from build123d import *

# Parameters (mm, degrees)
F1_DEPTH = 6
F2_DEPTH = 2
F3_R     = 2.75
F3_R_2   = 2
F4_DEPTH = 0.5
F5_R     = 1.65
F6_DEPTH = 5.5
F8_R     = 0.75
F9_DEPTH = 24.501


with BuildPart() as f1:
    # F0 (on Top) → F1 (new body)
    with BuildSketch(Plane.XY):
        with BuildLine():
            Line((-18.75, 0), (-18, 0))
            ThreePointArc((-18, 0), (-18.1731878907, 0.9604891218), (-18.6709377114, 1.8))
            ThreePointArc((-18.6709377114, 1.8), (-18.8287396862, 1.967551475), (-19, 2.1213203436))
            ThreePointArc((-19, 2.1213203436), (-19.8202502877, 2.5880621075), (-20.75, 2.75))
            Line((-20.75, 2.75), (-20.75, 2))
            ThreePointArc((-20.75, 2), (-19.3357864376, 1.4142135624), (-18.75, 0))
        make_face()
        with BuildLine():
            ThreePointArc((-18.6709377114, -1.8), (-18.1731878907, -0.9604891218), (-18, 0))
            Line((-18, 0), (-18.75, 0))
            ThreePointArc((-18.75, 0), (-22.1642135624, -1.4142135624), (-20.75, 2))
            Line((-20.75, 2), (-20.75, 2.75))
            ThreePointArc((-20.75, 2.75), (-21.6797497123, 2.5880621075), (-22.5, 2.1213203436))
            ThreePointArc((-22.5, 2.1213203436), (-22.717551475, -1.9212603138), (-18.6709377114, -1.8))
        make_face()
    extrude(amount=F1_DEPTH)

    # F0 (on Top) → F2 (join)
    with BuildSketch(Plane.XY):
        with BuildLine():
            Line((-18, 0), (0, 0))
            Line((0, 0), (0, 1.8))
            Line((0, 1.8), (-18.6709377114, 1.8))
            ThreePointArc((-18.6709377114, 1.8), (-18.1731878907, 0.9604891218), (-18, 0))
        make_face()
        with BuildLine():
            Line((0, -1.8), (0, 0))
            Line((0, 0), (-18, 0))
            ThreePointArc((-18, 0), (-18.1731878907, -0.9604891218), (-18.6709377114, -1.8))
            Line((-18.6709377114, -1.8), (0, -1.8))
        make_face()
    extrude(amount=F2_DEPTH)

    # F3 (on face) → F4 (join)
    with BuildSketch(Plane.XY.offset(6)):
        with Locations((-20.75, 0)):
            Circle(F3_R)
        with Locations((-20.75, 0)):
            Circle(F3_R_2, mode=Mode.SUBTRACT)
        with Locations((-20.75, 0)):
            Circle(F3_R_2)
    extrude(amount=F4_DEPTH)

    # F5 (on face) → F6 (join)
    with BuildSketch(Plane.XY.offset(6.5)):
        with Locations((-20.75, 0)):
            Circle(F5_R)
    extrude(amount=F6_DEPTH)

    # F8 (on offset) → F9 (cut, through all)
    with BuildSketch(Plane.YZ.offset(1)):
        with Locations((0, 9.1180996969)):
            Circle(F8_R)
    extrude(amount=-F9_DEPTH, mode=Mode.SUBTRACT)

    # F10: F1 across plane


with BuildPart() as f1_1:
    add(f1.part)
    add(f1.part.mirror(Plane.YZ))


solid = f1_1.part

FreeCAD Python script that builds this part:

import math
import FreeCAD as App
import Part
import Sketcher
Q = App.Units.Quantity

doc = App.newDocument("Part")
body = doc.addObject("PartDesign::Body", "Body")

# Sketch on XY plane
sketch1 = body.newObject("Sketcher::SketchObject", "Sketch")
sketch1.AttachmentSupport = (doc.getObject("XY_Plane"), [""])
sketch1.MapMode = "FlatFace"
sketch1.addGeometry(Part.ArcOfCircle(Part.Circle(App.Vector(-20.75, 0, 0), App.Vector(0, 0, 1), 2.75), math.radians(0), math.radians(41)), False)
sketch1.addGeometry(Part.ArcOfCircle(Part.Circle(App.Vector(-20.75, 0, 0), App.Vector(0, 0, 1), 2.75), math.radians(40.89), math.radians(50.48)), False)
sketch1.addGeometry(Part.ArcOfCircle(Part.Circle(App.Vector(-20.75, 0, 0), App.Vector(0, 0, 1), 2.75), math.radians(50), math.radians(90)), False)
sketch1.addGeometry(Part.ArcOfCircle(Part.Circle(App.Vector(-20.75, 0, 0), App.Vector(0, 0, 1), 2.75), math.radians(90), math.radians(130)), False)
sketch1.addGeometry(Part.ArcOfCircle(Part.Circle(App.Vector(-20.75, 0, 0), App.Vector(0, 0, 1), 2.75), math.radians(130), math.radians(319)), False)
sketch1.addGeometry(Part.ArcOfCircle(Part.Circle(App.Vector(-20.75, 0, 0), App.Vector(0, 0, 1), 2.75), math.radians(-41), math.radians(0)), False)
sketch1.addGeometry(Part.ArcOfCircle(Part.Circle(App.Vector(-20.75, 0, 0), App.Vector(0, 0, 1), 2), math.radians(0), math.radians(90)), False)
sketch1.addGeometry(Part.ArcOfCircle(Part.Circle(App.Vector(-20.75, 0, 0), App.Vector(0, 0, 1), 2), math.radians(90), math.radians(360)), False)
sketch1.addConstraint(Sketcher.Constraint("Tangent", 0, 2, 1, 1))
sketch1.addConstraint(Sketcher.Constraint("Tangent", 1, 2, 2, 1))
sketch1.addConstraint(Sketcher.Constraint("Tangent", 2, 2, 3, 1))
sketch1.addConstraint(Sketcher.Constraint("Tangent", 3, 2, 4, 1))
sketch1.addConstraint(Sketcher.Constraint("Tangent", 4, 2, 5, 1))
sketch1.addConstraint(Sketcher.Constraint("Tangent", 5, 2, 0, 1))
sketch1.addConstraint(Sketcher.Constraint("Tangent", 6, 1, 7, 2))
sketch1.addConstraint(Sketcher.Constraint("Coincident", 7, 1, 6, 2))
sketch1.addConstraint(Sketcher.Constraint("Coincident", 2, 3, 0, 3))
sketch1.addConstraint(Sketcher.Constraint("Coincident", 6, 3, 0, 3))
sketch1.addConstraint(Sketcher.Constraint("Equal", 2, 3))
sketch1.addConstraint(Sketcher.Constraint("Symmetric", 0, 2, 4, 2, -1))
sketch1.addConstraint(Sketcher.Constraint("PointOnObject", 5, 2, -1))
sketch1.addConstraint(Sketcher.Constraint("PointOnObject", 6, 1, -1))
sketch1.addConstraint(Sketcher.Constraint("Horizontal", 1, 2, 3, 2))
sketch1.addConstraint(Sketcher.Constraint("Vertical", 7, 3, 2, 2))
sketch1.addConstraint(Sketcher.Constraint("Vertical", 2, 2, 7, 1))
sketch1.addConstraint(Sketcher.Constraint("Radius", 6, Q("2 mm")))
sketch1.addConstraint(Sketcher.Constraint("Radius", 0, Q("2.75 mm")))
sketch1.addConstraint(Sketcher.Constraint("DistanceX", 1, 2, -1, 1, Q("19 mm")))
sketch1.addConstraint(Sketcher.Constraint("DistanceX", 5, 2, -1, 1, Q("18 mm")))
sketch1.addConstraint(Sketcher.Constraint("DistanceY", -1, 1, 0, 2, Q("1.8 mm")))
pad1 = body.newObject("PartDesign::Pad", "Pad")
pad1.Profile = sketch1
pad1.Length = 6

# Sketch on XY plane
sketch2 = body.newObject("Sketcher::SketchObject", "Sketch001")
sketch2.AttachmentSupport = (doc.getObject("XY_Plane"), [""])
sketch2.MapMode = "FlatFace"
sketch2.addGeometry(Part.LineSegment(App.Vector(0, 1.8, 0), App.Vector(-18.7, 1.8, 0)), False)
sketch2.addGeometry(Part.ArcOfCircle(Part.Circle(App.Vector(-20.8, 0, 0), App.Vector(0, 0, 1), 2.8), math.radians(0), math.radians(41)), False)
sketch2.addGeometry(Part.ArcOfCircle(Part.Circle(App.Vector(-20.8, 0, 0), App.Vector(0, 0, 1), 2.8), math.radians(-41), math.radians(0)), False)
sketch2.addGeometry(Part.LineSegment(App.Vector(-18.7, -1.8, 0), App.Vector(0, -1.8, 0)), False)
sketch2.addGeometry(Part.LineSegment(App.Vector(0, -1.8, 0), App.Vector(0, 1.8, 0)), False)
sketch2.addConstraint(Sketcher.Constraint("Coincident", 0, 2, 1, 2))
sketch2.addConstraint(Sketcher.Constraint("Tangent", 1, 1, 2, 2))
sketch2.addConstraint(Sketcher.Constraint("Coincident", 2, 1, 3, 1))
sketch2.addConstraint(Sketcher.Constraint("Coincident", 3, 2, 4, 1))
sketch2.addConstraint(Sketcher.Constraint("Coincident", 4, 2, 0, 1))
sketch2.addConstraint(Sketcher.Constraint("Horizontal", 0))
sketch2.addConstraint(Sketcher.Constraint("Horizontal", 3))
sketch2.addConstraint(Sketcher.Constraint("Vertical", 4))
sketch2.addConstraint(Sketcher.Constraint("Equal", 1, 2))
sketch2.addConstraint(Sketcher.Constraint("Symmetric", 3, 2, 4, 2, -1, 1))
sketch2.addConstraint(Sketcher.Constraint("PointOnObject", 1, 3, -1))
sketch2.addConstraint(Sketcher.Constraint("PointOnObject", 1, 1, -1))
sketch2.addConstraint(Sketcher.Constraint("Radius", 1, Q("2.75 mm")))
sketch2.addConstraint(Sketcher.Constraint("DistanceY", 4, 1, 4, 2, Q("3.6 mm")))
sketch2.addConstraint(Sketcher.Constraint("DistanceX", 1, 1, -1, 1, Q("18 mm")))
pad2 = body.newObject("PartDesign::Pad", "Pad001")
pad2.Profile = sketch2
pad2.Length = 2

# Sketch on XY plane
sketch3 = body.newObject("Sketcher::SketchObject", "Sketch002")
sketch3.AttachmentSupport = (doc.getObject("XY_Plane"), [""])
sketch3.MapMode = "FlatFace"
sketch3.AttachmentOffset = App.Placement(App.Vector(0, 0, 6), App.Rotation())
sketch3.addGeometry(Part.Circle(App.Vector(-20.8, 0, 0), App.Vector(0, 0, 1), 2.8), False)
sketch3.addConstraint(Sketcher.Constraint("PointOnObject", 0, 3, -1))
sketch3.addConstraint(Sketcher.Constraint("Diameter", 0, Q("5.5 mm")))
sketch3.addConstraint(Sketcher.Constraint("DistanceX", 0, 3, -1, 1, Q("20.75 mm")))
pad3 = body.newObject("PartDesign::Pad", "Pad002")
pad3.Profile = sketch3
pad3.Length = 0.5

# Sketch on XY plane
sketch4 = body.newObject("Sketcher::SketchObject", "Sketch003")
sketch4.AttachmentSupport = (doc.getObject("XY_Plane"), [""])
sketch4.MapMode = "FlatFace"
sketch4.AttachmentOffset = App.Placement(App.Vector(0, 0, 6.5), App.Rotation())
sketch4.addGeometry(Part.Circle(App.Vector(-20.8, 0, 0), App.Vector(0, 0, 1), 1.6), False)
sketch4.addConstraint(Sketcher.Constraint("PointOnObject", 0, 3, -1))
sketch4.addConstraint(Sketcher.Constraint("Diameter", 0, Q("3.3 mm")))
sketch4.addConstraint(Sketcher.Constraint("DistanceX", 0, 3, -1, 1, Q("20.75 mm")))
pad4 = body.newObject("PartDesign::Pad", "Pad003")
pad4.Profile = sketch4
pad4.Length = 5.5

# Sketch on YZ plane
sketch5 = body.newObject("Sketcher::SketchObject", "Sketch004")
sketch5.AttachmentSupport = (doc.getObject("YZ_Plane"), [""])
sketch5.MapMode = "FlatFace"
sketch5.AttachmentOffset = App.Placement(App.Vector(0, 0, 1), App.Rotation())
sketch5.addGeometry(Part.Circle(App.Vector(0, 9.1, 0), App.Vector(0, 0, 1), 0.8), False)
sketch5.addConstraint(Sketcher.Constraint("PointOnObject", 0, 3, -2))
sketch5.addConstraint(Sketcher.Constraint("Diameter", 0, Q("1.5 mm")))
sketch5.addConstraint(Sketcher.Constraint("DistanceY", -1, 1, 0, 3, Q("9.1181 mm")))
pocket1 = body.newObject("PartDesign::Pocket", "Pocket")
pocket1.Profile = sketch5
pocket1.Type = "ThroughAll"
body2 = doc.addObject("PartDesign::Body", "Body001")
doc.recompute()

body2.BaseFeature = body
doc.recompute()

mirroring = doc.addObject("Part::Mirroring", "Mirroring")
mirroring.Source = body
mirroring.Base = App.Vector(0, 0, 0)
mirroring.Normal = App.Vector(1, 0, 0)
body3 = doc.addObject("PartDesign::Body", "Body002")
body3.BaseFeature = mirroring
boolean = body2.newObject("PartDesign::Boolean", "Boolean")
boolean.Type = "Fuse"
boolean.addObjects([body3])
doc.recompute()
mirroring.Visibility = False

doc.recompute()
